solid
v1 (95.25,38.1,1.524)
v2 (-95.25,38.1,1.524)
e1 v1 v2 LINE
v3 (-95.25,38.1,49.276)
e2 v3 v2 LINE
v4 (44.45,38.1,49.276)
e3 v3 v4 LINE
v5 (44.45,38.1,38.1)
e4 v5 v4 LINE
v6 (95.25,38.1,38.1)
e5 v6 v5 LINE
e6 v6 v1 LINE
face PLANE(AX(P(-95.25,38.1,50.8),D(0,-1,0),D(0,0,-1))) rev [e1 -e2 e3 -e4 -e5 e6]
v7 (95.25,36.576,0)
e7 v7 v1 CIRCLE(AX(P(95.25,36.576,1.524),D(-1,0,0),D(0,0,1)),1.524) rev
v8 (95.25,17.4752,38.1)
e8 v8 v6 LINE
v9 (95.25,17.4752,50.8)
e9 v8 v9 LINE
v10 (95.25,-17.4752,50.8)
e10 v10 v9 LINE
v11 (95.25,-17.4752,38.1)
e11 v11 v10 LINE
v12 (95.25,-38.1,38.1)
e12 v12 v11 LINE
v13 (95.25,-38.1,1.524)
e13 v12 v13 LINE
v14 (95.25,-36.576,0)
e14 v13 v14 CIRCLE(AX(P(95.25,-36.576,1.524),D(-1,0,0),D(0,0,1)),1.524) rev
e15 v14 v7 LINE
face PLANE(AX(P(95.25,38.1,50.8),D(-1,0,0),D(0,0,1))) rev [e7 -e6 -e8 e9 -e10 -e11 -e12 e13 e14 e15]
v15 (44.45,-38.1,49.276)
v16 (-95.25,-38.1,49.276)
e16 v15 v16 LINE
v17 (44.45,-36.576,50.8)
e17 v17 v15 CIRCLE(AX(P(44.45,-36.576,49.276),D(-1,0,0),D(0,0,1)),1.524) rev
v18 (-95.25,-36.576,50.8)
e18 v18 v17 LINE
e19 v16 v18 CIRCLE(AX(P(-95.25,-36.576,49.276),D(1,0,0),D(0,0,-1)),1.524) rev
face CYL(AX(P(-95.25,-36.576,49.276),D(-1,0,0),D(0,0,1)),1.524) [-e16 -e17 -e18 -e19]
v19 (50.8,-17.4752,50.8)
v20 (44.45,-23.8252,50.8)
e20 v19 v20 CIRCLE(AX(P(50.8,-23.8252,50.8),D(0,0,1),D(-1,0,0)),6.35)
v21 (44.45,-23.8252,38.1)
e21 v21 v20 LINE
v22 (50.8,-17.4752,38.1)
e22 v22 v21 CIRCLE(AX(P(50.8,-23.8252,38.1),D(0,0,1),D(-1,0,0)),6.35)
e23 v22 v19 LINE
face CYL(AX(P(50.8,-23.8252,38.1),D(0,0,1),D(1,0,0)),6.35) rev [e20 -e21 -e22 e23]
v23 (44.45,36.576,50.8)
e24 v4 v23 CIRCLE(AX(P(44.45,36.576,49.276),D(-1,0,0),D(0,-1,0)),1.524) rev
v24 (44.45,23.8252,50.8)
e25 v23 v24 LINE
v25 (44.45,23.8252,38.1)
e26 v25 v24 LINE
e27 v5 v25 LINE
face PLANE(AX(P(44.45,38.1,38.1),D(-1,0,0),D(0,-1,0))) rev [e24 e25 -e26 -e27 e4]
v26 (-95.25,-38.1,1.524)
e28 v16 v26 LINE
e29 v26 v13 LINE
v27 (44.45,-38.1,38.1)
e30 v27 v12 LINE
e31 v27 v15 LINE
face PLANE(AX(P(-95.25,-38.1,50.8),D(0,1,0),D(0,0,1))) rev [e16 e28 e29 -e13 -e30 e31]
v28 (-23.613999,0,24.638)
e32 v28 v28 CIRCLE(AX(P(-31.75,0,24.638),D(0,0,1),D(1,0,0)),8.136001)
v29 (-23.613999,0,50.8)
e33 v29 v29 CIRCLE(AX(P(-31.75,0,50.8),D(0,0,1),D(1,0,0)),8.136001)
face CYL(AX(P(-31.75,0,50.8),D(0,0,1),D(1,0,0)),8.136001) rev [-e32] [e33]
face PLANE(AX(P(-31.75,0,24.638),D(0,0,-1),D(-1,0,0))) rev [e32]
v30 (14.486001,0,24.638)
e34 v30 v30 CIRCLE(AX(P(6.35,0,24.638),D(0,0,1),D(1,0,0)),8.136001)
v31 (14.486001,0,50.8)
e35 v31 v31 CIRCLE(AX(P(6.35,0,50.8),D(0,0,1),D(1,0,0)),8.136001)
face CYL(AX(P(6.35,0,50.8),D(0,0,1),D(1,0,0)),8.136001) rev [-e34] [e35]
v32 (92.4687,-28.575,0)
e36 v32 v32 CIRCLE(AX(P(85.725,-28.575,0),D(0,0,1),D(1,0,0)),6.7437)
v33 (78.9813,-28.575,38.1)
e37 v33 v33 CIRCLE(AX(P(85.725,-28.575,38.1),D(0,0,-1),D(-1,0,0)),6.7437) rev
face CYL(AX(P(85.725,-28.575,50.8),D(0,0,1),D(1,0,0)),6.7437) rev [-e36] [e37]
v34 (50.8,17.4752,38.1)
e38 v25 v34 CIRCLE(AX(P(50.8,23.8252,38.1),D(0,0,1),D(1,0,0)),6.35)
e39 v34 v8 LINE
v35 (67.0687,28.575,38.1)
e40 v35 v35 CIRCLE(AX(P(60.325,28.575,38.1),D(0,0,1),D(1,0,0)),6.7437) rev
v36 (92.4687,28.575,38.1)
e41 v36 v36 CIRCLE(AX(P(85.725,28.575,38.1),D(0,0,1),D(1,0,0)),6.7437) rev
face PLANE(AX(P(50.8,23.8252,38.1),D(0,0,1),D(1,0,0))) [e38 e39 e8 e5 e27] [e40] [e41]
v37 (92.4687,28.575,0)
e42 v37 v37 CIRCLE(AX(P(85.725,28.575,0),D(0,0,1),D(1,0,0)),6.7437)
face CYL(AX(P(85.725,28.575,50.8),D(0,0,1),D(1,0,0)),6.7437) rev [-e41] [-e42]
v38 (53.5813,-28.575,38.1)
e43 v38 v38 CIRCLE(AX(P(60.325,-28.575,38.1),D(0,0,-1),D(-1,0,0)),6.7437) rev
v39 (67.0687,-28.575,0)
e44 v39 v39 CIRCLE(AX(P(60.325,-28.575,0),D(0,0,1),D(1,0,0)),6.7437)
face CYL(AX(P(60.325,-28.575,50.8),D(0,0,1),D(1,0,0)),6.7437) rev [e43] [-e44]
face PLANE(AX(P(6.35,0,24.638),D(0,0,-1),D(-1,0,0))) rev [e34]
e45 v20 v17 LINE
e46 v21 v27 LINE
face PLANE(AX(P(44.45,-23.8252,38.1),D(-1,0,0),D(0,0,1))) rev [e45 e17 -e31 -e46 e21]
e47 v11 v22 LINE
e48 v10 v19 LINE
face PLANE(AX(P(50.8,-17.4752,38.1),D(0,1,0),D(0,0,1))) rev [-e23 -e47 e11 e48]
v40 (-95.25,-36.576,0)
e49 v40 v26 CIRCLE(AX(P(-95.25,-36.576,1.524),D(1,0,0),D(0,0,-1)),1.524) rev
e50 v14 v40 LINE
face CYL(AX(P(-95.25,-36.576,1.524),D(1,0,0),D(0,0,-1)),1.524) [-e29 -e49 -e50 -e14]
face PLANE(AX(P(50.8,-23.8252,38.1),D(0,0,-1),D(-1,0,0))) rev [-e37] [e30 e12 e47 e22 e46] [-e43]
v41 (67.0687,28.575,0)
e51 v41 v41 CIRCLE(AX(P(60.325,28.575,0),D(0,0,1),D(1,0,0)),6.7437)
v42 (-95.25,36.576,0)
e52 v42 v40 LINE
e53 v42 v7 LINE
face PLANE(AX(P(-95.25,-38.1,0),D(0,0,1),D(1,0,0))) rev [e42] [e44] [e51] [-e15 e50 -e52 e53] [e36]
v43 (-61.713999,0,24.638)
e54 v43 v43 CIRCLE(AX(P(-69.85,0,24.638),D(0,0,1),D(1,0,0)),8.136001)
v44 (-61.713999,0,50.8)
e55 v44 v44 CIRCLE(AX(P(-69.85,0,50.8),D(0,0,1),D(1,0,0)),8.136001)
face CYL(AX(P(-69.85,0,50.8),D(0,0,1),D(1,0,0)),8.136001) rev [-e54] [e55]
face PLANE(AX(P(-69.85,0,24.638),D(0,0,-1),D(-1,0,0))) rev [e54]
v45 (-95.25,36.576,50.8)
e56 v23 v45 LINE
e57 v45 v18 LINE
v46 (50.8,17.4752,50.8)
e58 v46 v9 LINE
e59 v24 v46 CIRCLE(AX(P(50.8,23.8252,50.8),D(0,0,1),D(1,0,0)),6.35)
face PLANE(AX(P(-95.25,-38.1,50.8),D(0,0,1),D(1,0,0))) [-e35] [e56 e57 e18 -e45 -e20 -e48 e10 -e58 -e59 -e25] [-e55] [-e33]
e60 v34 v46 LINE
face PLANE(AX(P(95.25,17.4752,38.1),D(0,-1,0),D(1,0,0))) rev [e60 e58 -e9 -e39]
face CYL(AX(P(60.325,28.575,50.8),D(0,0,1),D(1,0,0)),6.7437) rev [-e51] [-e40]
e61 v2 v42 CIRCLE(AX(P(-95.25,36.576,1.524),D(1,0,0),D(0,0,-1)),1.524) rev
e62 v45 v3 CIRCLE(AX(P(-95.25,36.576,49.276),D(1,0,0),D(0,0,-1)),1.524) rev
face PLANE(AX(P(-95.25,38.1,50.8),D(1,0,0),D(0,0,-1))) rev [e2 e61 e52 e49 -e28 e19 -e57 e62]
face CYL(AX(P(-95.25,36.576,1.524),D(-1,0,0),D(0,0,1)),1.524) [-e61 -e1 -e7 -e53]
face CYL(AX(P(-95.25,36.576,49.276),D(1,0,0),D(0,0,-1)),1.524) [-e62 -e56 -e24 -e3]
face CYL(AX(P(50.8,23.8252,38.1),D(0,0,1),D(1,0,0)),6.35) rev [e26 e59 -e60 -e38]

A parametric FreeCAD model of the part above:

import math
import FreeCAD as App
import Part
import Sketcher
Q = App.Units.Quantity


def edges_at(feature, points):
    """Names of the edges that pass closest to the given points."""
    edges = feature.Shape.Edges
    near = lambda p: min(range(len(edges)), key=lambda i: edges[i].distToShape(Part.Vertex(*p))[0])
    return sorted({f"Edge{near(p) + 1}" for p in points})


def add_polygon(sketch, points):
    """Adds a closed chain of lines whose ends are joined by coincident constraints."""
    first, n = sketch.GeometryCount, len(points)
    for a, b in zip(points, points[1:] + points[:1]):
        sketch.addGeometry(Part.LineSegment(App.Vector(*a, 0), App.Vector(*b, 0)), False)
    for i in range(n):
        sketch.addConstraint(Sketcher.Constraint("Coincident", first + i, 2, first + (i + 1) % n, 1))

doc = App.newDocument("Part")
body = doc.addObject("PartDesign::Body", "Body")

sketch1 = body.newObject("Sketcher::SketchObject", "Sketch")
sketch1.AttachmentSupport = (doc.getObject("XY_Plane"), [""])
sketch1.MapMode = "FlatFace"
add_polygon(sketch1, [(-95, 38), (-95, -38), (95, -38), (95, 38)])
sketch1.addConstraint([
    Sketcher.Constraint("Vertical", 0),
    Sketcher.Constraint("Horizontal", 1),
    Sketcher.Constraint("Vertical", 2),
    Sketcher.Constraint("Horizontal", 3),
    Sketcher.Constraint("Symmetric", 0, 2, 2, 2, -1, 1),
    Sketcher.Constraint("DistanceY", 0, 2, 0, 1, Q("3 in")),
    Sketcher.Constraint("DistanceX", 1, 1, 1, 2, Q("7.5 in")),
])
pad1 = body.newObject("PartDesign::Pad", "Pad")
pad1.Profile = sketch1
pad1.Length = Q("2 in")
doc.recompute()

fillet = body.newObject("PartDesign::Fillet", "Fillet")
fillet.Base = (pad1, edges_at(pad1, [
    (0, 38.1, 50.8),
    (0, 38.1, 0),
    (0, -38.1, 0),
    (0, -38.1, 50.8),
]))
fillet.Radius = Q("0.06 in")

sketch2 = body.newObject("Sketcher::SketchObject", "Sketch001")
sketch2.AttachmentSupport = (doc.getObject("XY_Plane"), [""])
sketch2.MapMode = "FlatFace"
sketch2.AttachmentOffset = App.Placement(App.Vector(0, 0, 2 * 25.4), App.Rotation())
sketch2.addGeometry([
    Part.Circle(App.Vector(-70, 0, 0), App.Vector(0, 0, 1), 8),
    Part.Circle(App.Vector(-32, 0, 0), App.Vector(0, 0, 1), 8),
    Part.Circle(App.Vector(6, 0, 0), App.Vector(0, 0, 1), 8),
], False)
sketch2.addConstraint([
    Sketcher.Constraint("Equal", 0, 1),
    Sketcher.Constraint("Equal", 1, 2),
    Sketcher.Constraint("PointOnObject", 0, 3, -1),
    Sketcher.Constraint("PointOnObject", 1, 3, -1),
    Sketcher.Constraint("PointOnObject", 2, 3, -1),
    Sketcher.Constraint("DistanceX", 0, 3, 2, 3, Q("3 in")),
    Sketcher.Constraint("DistanceX", 0, 3, 1, 3, Q("1.5 in")),
    Sketcher.Constraint("DistanceX", 0, 3, -1, 1, Q("2.75 in")),
    Sketcher.Constraint("Diameter", 0, 16.272002),
])
doc.recompute()
hole = body.newObject("PartDesign::Hole", "Hole")
hole.Profile = sketch2
hole.ThreadType = "None"
hole.Diameter = 16.272002
hole.DepthType = "Dimension"
hole.Depth = Q("1.03 in")
hole.DrillPoint = "Flat"

sketch3 = body.newObject("Sketcher::SketchObject", "Sketch002")
sketch3.AttachmentSupport = (doc.getObject("XY_Plane"), [""])
sketch3.MapMode = "FlatFace"
sketch3.AttachmentOffset = App.Placement(App.Vector(0, 0, 2 * 25.4), App.Rotation())
sketch3.addGeometry([
    Part.Circle(App.Vector(60, 29, 0), App.Vector(0, 0, 1), 7),
    Part.Circle(App.Vector(86, 29, 0), App.Vector(0, 0, 1), 7),
    Part.Circle(App.Vector(60, -29, 0), App.Vector(0, 0, 1), 7),
    Part.Circle(App.Vector(86, -29, 0), App.Vector(0, 0, 1), 7),
], False)
sketch3.addConstraint([
    Sketcher.Constraint("Equal", 0, 1),
    Sketcher.Constraint("Equal", 1, 2),
    Sketcher.Constraint("Equal", 2, 3),
    Sketcher.Constraint("Symmetric", 0, 3, 2, 3, -1),
    Sketcher.Constraint("Symmetric", 1, 3, 3, 3, -1),
    Sketcher.Constraint("Horizontal", 0, 3, 1, 3),
    Sketcher.Constraint("Diameter", 0, Q("0.531 in")),
    Sketcher.Constraint("DistanceX", 0, 3, 1, 3, Q("1 in")),
    Sketcher.Constraint("DistanceY", 2, 3, 0, 3, Q("2.25 in")),
    Sketcher.Constraint("DistanceX", -1, 1, 0, 3, Q("2.375 in")),
])
doc.recompute()
hole2 = body.newObject("PartDesign::Hole", "Hole001")
hole2.Profile = sketch3
hole2.ThreadType = "None"
hole2.Diameter = Q("0.531 in")
hole2.DepthType = "ThroughAll"

sketch4 = body.newObject("Sketcher::SketchObject", "Sketch003")
sketch4.AttachmentSupport = (doc.getObject("XY_Plane"), [""])
sketch4.MapMode = "FlatFace"
sketch4.AttachmentOffset = App.Placement(App.Vector(0, 0, 2 * 25.4), App.Rotation())
sketch4.addGeometry([
    Part.LineSegment(App.Vector(95, 38, 0), App.Vector(44, 38, 0)),
    Part.LineSegment(App.Vector(44, 38, 0), App.Vector(44, 24, 0)),
    Part.ArcOfCircle(Part.Circle(App.Vector(51, 24, 0), App.Vector(0, 0, 1), 6), math.radians(180), math.radians(270)),
    Part.LineSegment(App.Vector(51, 17, 0), App.Vector(95, 17, 0)),
    Part.LineSegment(App.Vector(95, 17, 0), App.Vector(95, 38, 0)),
    Part.LineSegment(App.Vector(95, -17, 0), App.Vector(51, -17, 0)),
    Part.ArcOfCircle(Part.Circle(App.Vector(51, -24, 0), App.Vector(0, 0, 1), 6), math.radians(90), math.radians(180)),
    Part.LineSegment(App.Vector(44, -24, 0), App.Vector(44, -38, 0)),
    Part.LineSegment(App.Vector(44, -38, 0), App.Vector(95, -38, 0)),
    Part.LineSegment(App.Vector(95, -38, 0), App.Vector(95, -17, 0)),
], False)
sketch4.addConstraint([
    Sketcher.Constraint("Coincident", 0, 2, 1, 1),
    Sketcher.Constraint("Tangent", 1, 2, 2, 1),
    Sketcher.Constraint("Tangent", 2, 2, 3, 1),
    Sketcher.Constraint("Coincident", 3, 2, 4, 1),
    Sketcher.Constraint("Coincident", 4, 2, 0, 1),
    Sketcher.Constraint("Tangent", 5, 2, 6, 1),
    Sketcher.Constraint("Tangent", 6, 2, 7, 1),
    Sketcher.Constraint("Coincident", 7, 2, 8, 1),
    Sketcher.Constraint("Coincident", 8, 2, 9, 1),
    Sketcher.Constraint("Coincident", 9, 2, 5, 1),
    Sketcher.Constraint("Horizontal", 0),
    Sketcher.Constraint("Vertical", 1),
    Sketcher.Constraint("Horizontal", 3),
    Sketcher.Constraint("Vertical", 4),
    Sketcher.Constraint("Horizontal", 5),
    Sketcher.Constraint("Vertical", 7),
    Sketcher.Constraint("Horizontal", 8),
    Sketcher.Constraint("Vertical", 9),
    Sketcher.Constraint("Equal", 2, 6),
    Sketcher.Constraint("Symmetric", 2, 3, 6, 3, -1),
    Sketcher.Constraint("Symmetric", 4, 2, 8, 2, -1),
    Sketcher.Constraint("DistanceX", 0, 2, 0, 1, Q("2 in")),
    Sketcher.Constraint("Radius", 2, Q("0.25 in")),
    Sketcher.Constraint("DistanceX", -1, 1, 2, 3, Q("2 in")),
    Sketcher.Constraint("DistanceY", -1, 1, 0, 2, Q("1.5 in")),
    Sketcher.Constraint("DistanceY", 1, 2, 1, 1, Q("0.562 in")),
])
pocket1 = body.newObject("PartDesign::Pocket", "Pocket")
pocket1.Profile = sketch4
pocket1.Length = Q("0.5 in")

doc.recompute()
